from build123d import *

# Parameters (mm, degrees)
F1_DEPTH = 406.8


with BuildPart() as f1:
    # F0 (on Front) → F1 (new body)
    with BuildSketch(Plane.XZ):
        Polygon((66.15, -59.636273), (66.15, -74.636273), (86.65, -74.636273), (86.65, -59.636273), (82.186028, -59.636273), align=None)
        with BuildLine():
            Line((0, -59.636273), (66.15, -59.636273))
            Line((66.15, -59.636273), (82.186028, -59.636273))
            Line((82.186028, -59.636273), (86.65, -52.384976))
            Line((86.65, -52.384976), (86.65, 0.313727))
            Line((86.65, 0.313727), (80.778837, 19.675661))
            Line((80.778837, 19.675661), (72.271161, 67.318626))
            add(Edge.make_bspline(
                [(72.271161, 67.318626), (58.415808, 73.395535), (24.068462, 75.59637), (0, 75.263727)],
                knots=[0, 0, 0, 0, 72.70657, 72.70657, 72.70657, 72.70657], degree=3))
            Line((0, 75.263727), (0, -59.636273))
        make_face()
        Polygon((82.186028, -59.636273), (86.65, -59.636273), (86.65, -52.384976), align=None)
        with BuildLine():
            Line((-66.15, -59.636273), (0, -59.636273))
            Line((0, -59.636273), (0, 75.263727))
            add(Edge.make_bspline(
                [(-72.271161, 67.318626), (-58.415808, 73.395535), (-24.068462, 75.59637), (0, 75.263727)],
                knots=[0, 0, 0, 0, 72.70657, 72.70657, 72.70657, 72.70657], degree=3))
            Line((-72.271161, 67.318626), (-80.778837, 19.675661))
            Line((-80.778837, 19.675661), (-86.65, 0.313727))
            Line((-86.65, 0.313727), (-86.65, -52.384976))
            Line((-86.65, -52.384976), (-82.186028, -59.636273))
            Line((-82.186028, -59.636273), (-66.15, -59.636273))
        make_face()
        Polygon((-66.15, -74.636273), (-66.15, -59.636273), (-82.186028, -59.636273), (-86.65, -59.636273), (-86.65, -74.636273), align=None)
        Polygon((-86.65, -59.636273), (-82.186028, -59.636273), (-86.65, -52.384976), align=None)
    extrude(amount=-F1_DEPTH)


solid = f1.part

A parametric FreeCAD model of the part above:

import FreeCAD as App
import Part
import Sketcher

doc = App.newDocument("Part")
params = doc.addObject("Spreadsheet::Sheet", "Params")
for row, (alias, value) in enumerate([
    ("sketch1_height", "15 mm"),
    ("sketch1_width", "20.5 mm"),
    ("sketch1_width2", "132.3 mm"),
    ("sketch1_height2", "74.95 mm"),
    ("pad1_length", "406.8 mm"),
], start=1):
    params.set(f"A{row}", alias)
    params.set(f"B{row}", "=" + value)
    params.setAlias(f"B{row}", alias)

body = doc.addObject("PartDesign::Body", "Body")

# Sketch on XZ plane
sketch1 = body.newObject("Sketcher::SketchObject", "Sketch")
sketch1.AttachmentSupport = (doc.getObject("XZ_Plane"), [""])
sketch1.MapMode = "FlatFace"
sketch1.addGeometry(Part.LineSegment(App.Vector(66.15, -59.636273, 0), App.Vector(66.15, -74.636273, 0)), False)
sketch1.addGeometry(Part.LineSegment(App.Vector(66.15, -74.636273, 0), App.Vector(86.65, -74.636273, 0)), False)
sketch1.addGeometry(Part.LineSegment(App.Vector(86.65, -74.636273, 0), App.Vector(86.65, 0.313727, 0)), False)
sketch1.addGeometry(Part.LineSegment(App.Vector(86.65, 0.313727, 0), App.Vector(80.778837, 19.675661, 0)), False)
sketch1.addGeometry(Part.LineSegment(App.Vector(80.778837, 19.675661, 0), App.Vector(72.271161, 67.318626, 0)), False)
sketch1.addGeometry(Part.BSplineCurve([App.Vector(72.271161, 67.318626, 0), App.Vector(58.415808, 73.395535, 0), App.Vector(24.068462, 75.59637, 0), App.Vector(0, 75.263727, 0)], [4, 4], [0, 72.70657], False, 3, [1, 1, 1, 1], False), False)
sketch1.addGeometry(Part.BSplineCurve([App.Vector(-72.271161, 67.318626, 0), App.Vector(-58.415808, 73.395535, 0), App.Vector(-24.068462, 75.59637, 0), App.Vector(0, 75.263727, 0)], [4, 4], [0, 72.70657], False, 3, [1, 1, 1, 1], False), False)
sketch1.addGeometry(Part.LineSegment(App.Vector(-72.271161, 67.318626, 0), App.Vector(-80.778837, 19.675661, 0)), False)
sketch1.addGeometry(Part.LineSegment(App.Vector(-80.778837, 19.675661, 0), App.Vector(-86.65, 0.313727, 0)), False)
sketch1.addGeometry(Part.LineSegment(App.Vector(-86.65, 0.313727, 0), App.Vector(-86.65, -74.636273, 0)), False)
sketch1.addGeometry(Part.LineSegment(App.Vector(-86.65, -74.636273, 0), App.Vector(-66.15, -74.636273, 0)), False)
sketch1.addGeometry(Part.LineSegment(App.Vector(-66.15, -74.636273, 0), App.Vector(-66.15, -59.636273, 0)), False)
sketch1.addGeometry(Part.LineSegment(App.Vector(-66.15, -59.636273, 0), App.Vector(66.15, -59.636273, 0)), False)
sketch1.addConstraint(Sketcher.Constraint("Block", 5))
sketch1.addConstraint(Sketcher.Constraint("Block", 6))
sketch1.addConstraint(Sketcher.Constraint("Coincident", 0, 2, 1, 1))
sketch1.addConstraint(Sketcher.Constraint("Coincident", 1, 2, 2, 1))
sketch1.addConstraint(Sketcher.Constraint("Coincident", 2, 2, 3, 1))
sketch1.addConstraint(Sketcher.Constraint("Coincident", 3, 2, 4, 1))
sketch1.addConstraint(Sketcher.Constraint("Coincident", 4, 2, 5, 1))
sketch1.addConstraint(Sketcher.Constraint("Coincident", 6, 1, 7, 1))
sketch1.addConstraint(Sketcher.Constraint("Coincident", 7, 2, 8, 1))
sketch1.addConstraint(Sketcher.Constraint("Coincident", 8, 2, 9, 1))
sketch1.addConstraint(Sketcher.Constraint("Coincident", 9, 2, 10, 1))
sketch1.addConstraint(Sketcher.Constraint("Coincident", 10, 2, 11, 1))
sketch1.addConstraint(Sketcher.Constraint("Coincident", 11, 2, 12, 1))
sketch1.addConstraint(Sketcher.Constraint("Coincident", 12, 2, 0, 1))
sketch1.addConstraint(Sketcher.Constraint("Vertical", 0))
sketch1.addConstraint(Sketcher.Constraint("Horizontal", 1))
sketch1.addConstraint(Sketcher.Constraint("Vertical", 2))
sketch1.addConstraint(Sketcher.Constraint("Vertical", 9))
sketch1.addConstraint(Sketcher.Constraint("Horizontal", 10))
sketch1.addConstraint(Sketcher.Constraint("Vertical", 11))
sketch1.addConstraint(Sketcher.Constraint("Horizontal", 12))
sketch1.addConstraint(Sketcher.Constraint("Symmetric", 3, 2, 7, 2, -2))
sketch1.addConstraint(Sketcher.Constraint("Symmetric", 2, 2, 8, 2, -2))
sketch1.addConstraint(Sketcher.Constraint("Symmetric", 0, 2, 10, 2, -2))
sketch1.addConstraint(Sketcher.Constraint("DistanceY", 0, 2, 0, 1, 15.0))
sketch1.addConstraint(Sketcher.Constraint("DistanceX", 1, 1, 1, 2, 20.5))
sketch1.addConstraint(Sketcher.Constraint("DistanceX", 12, 1, 12, 2, 132.3))
sketch1.addConstraint(Sketcher.Constraint("DistanceY", 2, 1, 2, 2, 74.95))
sketch1.addConstraint(Sketcher.Constraint("DistanceX", 7, 2, 4, 2, 153.049998))
sketch1.addConstraint(Sketcher.Constraint("DistanceY", 2, 2, 4, 2, 67.004899))
sketch1.addConstraint(Sketcher.Constraint("Distance", 4, 48.396618))
sketch1.setExpression("Constraints[24]", "Params.sketch1_height")
sketch1.setExpression("Constraints[25]", "Params.sketch1_width")
sketch1.setExpression("Constraints[26]", "Params.sketch1_width2")
sketch1.setExpression("Constraints[27]", "Params.sketch1_height2")
pad1 = body.newObject("PartDesign::Pad", "Pad")
pad1.Profile = sketch1
pad1.setExpression("Length", "Params.pad1_length")
pad1.Reversed = True

doc.recompute()
